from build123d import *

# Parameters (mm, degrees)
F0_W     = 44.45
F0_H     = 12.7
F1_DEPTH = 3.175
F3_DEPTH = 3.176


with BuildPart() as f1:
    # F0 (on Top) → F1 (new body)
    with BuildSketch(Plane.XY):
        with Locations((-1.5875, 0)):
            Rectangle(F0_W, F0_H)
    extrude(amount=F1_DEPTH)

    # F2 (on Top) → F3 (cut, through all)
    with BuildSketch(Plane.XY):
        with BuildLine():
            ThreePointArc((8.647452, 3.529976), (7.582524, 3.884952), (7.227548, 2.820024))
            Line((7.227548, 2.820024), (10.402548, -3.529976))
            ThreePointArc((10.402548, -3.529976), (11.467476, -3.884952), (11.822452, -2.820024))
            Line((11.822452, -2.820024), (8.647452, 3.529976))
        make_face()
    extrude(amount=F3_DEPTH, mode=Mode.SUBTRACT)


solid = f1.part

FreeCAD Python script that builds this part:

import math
import FreeCAD as App
import Part
import Sketcher
Q = App.Units.Quantity


def add_polygon(sketch, points):
    """Adds a closed chain of lines whose ends are joined by coincident constraints."""
    first, n = sketch.GeometryCount, len(points)
    for a, b in zip(points, points[1:] + points[:1]):
        sketch.addGeometry(Part.LineSegment(App.Vector(*a, 0), App.Vector(*b, 0)), False)
    for i in range(n):
        sketch.addConstraint(Sketcher.Constraint("Coincident", first + i, 2, first + (i + 1) % n, 1))

doc = App.newDocument("Part")
params = doc.addObject("Spreadsheet::Sheet", "Params")
for row, (alias, value) in enumerate([
    ("sketch1_height", "0.5 in"),
    ("sketch1_width", "1.75 in"),
    ("pad1_length", "0.125 in"),
    ("sketch2_radius", "0.03125 in"),
], start=1):
    params.set(f"A{row}", alias)
    params.set(f"B{row}", "=" + value)
    params.setAlias(f"B{row}", alias)

body = doc.addObject("PartDesign::Body", "Body")

# Sketch on XY plane
sketch1 = doc.addObject("Sketcher::SketchObject", "Sketch")
body.addObject(sketch1)
sketch1.AttachmentSupport = (doc.XY_Plane, [""])
sketch1.MapMode = "FlatFace"
add_polygon(sketch1, [(-24, 6), (-24, -6), (21, -6), (21, 6)])  # lines 0-3
sketch1.addConstraint([
    Sketcher.Constraint("Vertical", 0),
    Sketcher.Constraint("Horizontal", 1),
    Sketcher.Constraint("Vertical", 2),
    Sketcher.Constraint("Horizontal", 3),
    Sketcher.Constraint("DistanceY", 0, 2, 0, 1, Q("0.5 in")),
    Sketcher.Constraint("DistanceX", 1, 1, 1, 2, Q("1.75 in")),
    Sketcher.Constraint("DistanceY", 0, 2, -1, 1, Q("0.25 in")),
    Sketcher.Constraint("DistanceX", 0, 2, -1, 1, Q("0.9375 in")),
])
sketch1.setExpression("Constraints[8]", "Params.sketch1_height")
sketch1.setExpression("Constraints[9]", "Params.sketch1_width")
pad1 = doc.addObject("PartDesign::Pad", "Pad")
body.addObject(pad1)
pad1.Profile = sketch1
pad1.setExpression("Length", "Params.pad1_length")

# Sketch on XY plane
sketch2 = doc.addObject("Sketcher::SketchObject", "Sketch001")
body.addObject(sketch2)
sketch2.AttachmentSupport = (doc.XY_Plane, [""])
sketch2.MapMode = "FlatFace"
sketch2.addGeometry([
    Part.ArcOfCircle(Part.Circle(App.Vector(7.9, 3.2, 0), App.Vector(0, 0, 1), 0.8), math.radians(27), math.radians(207)),
    Part.LineSegment(App.Vector(7.2, 2.8, 0), App.Vector(10.4, -3.5, 0)),
    Part.ArcOfCircle(Part.Circle(App.Vector(11.1, -3.2, 0), App.Vector(0, 0, 1), 0.8), math.radians(-153), math.radians(27)),
    Part.LineSegment(App.Vector(11.8, -2.8, 0), App.Vector(8.6, 3.5, 0)),
], False)
sketch2.addConstraint([
    Sketcher.Constraint("Tangent", 0, 2, 1, 1),
    Sketcher.Constraint("Tangent", 1, 2, 2, 1),
    Sketcher.Constraint("Tangent", 2, 2, 3, 1),
    Sketcher.Constraint("Tangent", 3, 2, 0, 1),
    Sketcher.Constraint("Equal", 0, 2),
    Sketcher.Constraint("Radius", 0, Q("0.03125 in")),
    Sketcher.Constraint("DistanceY", 2, 3, 0, 3, Q("0.25 in")),
    Sketcher.Constraint("DistanceX", -1, 1, 0, 3, Q("0.3125 in")),
    Sketcher.Constraint("DistanceY", -1, 1, 0, 3, Q("0.125 in")),
    Sketcher.Constraint("DistanceX", -1, 1, 2, 3, Q("0.4375 in")),
])
sketch2.setExpression("Constraints[5]", "Params.sketch2_radius")
pocket1 = doc.addObject("PartDesign::Pocket", "Pocket")
body.addObject(pocket1)
pocket1.Profile = sketch2
pocket1.Type = "ThroughAll"
pocket1.Reversed = True

doc.recompute()
